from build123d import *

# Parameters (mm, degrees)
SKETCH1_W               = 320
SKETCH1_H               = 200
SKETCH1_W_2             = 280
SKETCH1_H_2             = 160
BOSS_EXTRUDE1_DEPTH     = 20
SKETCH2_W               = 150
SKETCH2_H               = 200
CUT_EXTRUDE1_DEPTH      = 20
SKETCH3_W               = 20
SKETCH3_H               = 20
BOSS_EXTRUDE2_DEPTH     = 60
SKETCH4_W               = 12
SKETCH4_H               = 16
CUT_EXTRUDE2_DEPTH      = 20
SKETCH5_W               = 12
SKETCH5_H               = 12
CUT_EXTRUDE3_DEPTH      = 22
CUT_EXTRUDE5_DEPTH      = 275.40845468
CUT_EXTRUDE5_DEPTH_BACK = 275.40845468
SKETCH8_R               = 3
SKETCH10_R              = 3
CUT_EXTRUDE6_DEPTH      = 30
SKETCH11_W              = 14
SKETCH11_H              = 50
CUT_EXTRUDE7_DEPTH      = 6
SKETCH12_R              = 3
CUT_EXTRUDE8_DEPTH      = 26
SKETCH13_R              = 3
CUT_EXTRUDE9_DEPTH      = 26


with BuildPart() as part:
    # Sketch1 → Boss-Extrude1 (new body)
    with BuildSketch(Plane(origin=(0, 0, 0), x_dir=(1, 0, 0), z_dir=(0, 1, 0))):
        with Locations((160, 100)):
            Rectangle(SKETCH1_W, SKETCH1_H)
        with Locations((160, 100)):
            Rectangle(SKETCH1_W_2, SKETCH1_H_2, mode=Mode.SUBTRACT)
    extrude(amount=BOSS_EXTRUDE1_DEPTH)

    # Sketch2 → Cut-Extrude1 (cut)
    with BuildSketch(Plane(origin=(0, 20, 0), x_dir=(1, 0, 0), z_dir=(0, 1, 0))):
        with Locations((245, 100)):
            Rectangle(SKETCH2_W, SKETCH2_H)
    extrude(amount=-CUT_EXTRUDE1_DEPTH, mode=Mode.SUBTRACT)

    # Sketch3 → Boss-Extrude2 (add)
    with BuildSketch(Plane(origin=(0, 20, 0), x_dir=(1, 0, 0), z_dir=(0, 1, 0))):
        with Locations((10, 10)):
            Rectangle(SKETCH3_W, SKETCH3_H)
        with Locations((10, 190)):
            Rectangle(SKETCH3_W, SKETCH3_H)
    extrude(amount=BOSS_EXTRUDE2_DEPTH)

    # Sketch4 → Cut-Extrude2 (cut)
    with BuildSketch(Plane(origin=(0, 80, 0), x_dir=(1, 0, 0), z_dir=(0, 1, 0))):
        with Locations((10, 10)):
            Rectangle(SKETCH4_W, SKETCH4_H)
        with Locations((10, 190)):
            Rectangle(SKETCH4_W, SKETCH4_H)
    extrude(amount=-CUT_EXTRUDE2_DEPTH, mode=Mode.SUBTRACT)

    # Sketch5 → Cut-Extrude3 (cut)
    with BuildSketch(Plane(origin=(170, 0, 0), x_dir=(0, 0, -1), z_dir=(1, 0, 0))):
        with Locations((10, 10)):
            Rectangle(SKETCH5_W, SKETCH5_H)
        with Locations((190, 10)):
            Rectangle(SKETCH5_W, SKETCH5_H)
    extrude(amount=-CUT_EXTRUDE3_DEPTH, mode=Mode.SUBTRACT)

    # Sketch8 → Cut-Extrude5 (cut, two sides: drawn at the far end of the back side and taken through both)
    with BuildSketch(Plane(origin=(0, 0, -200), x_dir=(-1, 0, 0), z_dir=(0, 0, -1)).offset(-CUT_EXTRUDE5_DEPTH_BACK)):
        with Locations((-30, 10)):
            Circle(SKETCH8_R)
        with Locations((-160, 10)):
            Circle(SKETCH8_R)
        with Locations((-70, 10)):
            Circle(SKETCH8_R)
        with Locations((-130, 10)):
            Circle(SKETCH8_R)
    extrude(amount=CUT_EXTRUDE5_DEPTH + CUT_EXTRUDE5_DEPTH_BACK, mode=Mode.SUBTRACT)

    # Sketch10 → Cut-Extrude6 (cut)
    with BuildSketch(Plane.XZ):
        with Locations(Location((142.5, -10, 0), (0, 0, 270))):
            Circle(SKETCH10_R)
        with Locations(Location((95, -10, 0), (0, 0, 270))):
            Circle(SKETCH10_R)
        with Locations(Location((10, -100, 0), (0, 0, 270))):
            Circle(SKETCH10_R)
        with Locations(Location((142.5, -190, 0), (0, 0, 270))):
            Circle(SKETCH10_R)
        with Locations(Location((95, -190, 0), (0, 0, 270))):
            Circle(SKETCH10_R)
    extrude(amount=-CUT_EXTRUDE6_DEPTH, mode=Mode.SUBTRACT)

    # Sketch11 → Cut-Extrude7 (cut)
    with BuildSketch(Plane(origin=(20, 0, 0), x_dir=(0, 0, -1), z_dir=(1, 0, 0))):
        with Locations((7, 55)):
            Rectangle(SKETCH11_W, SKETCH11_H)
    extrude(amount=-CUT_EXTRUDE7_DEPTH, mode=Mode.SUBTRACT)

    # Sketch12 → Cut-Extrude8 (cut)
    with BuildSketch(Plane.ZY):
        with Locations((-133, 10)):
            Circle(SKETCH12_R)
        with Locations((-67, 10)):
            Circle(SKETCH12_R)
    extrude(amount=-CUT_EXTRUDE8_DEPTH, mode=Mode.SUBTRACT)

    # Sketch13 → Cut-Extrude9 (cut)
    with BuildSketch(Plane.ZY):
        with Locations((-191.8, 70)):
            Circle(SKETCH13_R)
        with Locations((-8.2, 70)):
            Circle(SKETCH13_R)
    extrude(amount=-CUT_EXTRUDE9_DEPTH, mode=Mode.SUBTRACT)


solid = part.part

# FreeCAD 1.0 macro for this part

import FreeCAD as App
import Part
import Sketcher
from FreeCAD import Vector

doc = App.newDocument("Part")
body = doc.addObject("PartDesign::Body", "Body")

sketch1 = body.newObject("Sketcher::SketchObject", "Sketch")
sketch1.AttachmentSupport = (doc.getObject("XZ_Plane"), [""])
sketch1.MapMode = "FlatFace"
sketch1.addGeometry([
    Part.LineSegment(Vector(0, -200, 0), Vector(0, 0, 0)),
    Part.LineSegment(Vector(0, 0, 0), Vector(320, 0, 0)),
    Part.LineSegment(Vector(320, 0, 0), Vector(320, -200, 0)),
    Part.LineSegment(Vector(320, -200, 0), Vector(0, -200, 0)),
    Part.LineSegment(Vector(300, -20, 0), Vector(20, -20, 0)),
    Part.LineSegment(Vector(20, -20, 0), Vector(20, -180, 0)),
    Part.LineSegment(Vector(20, -180, 0), Vector(300, -180, 0)),
    Part.LineSegment(Vector(300, -180, 0), Vector(300, -20, 0)),
], False)
sketch1.addConstraint([
    Sketcher.Constraint("Coincident", 0, 2, 1, 1),
    Sketcher.Constraint("Coincident", 1, 2, 2, 1),
    Sketcher.Constraint("Coincident", 2, 2, 3, 1),
    Sketcher.Constraint("Coincident", 3, 2, 0, 1),
    Sketcher.Constraint("Coincident", 4, 2, 5, 1),
    Sketcher.Constraint("Coincident", 5, 2, 6, 1),
    Sketcher.Constraint("Coincident", 6, 2, 7, 1),
    Sketcher.Constraint("Coincident", 7, 2, 4, 1),
    Sketcher.Constraint("Vertical", 0),
    Sketcher.Constraint("Horizontal", 1),
    Sketcher.Constraint("Vertical", 2),
    Sketcher.Constraint("Horizontal", 3),
    Sketcher.Constraint("Horizontal", 4),
    Sketcher.Constraint("Vertical", 5),
    Sketcher.Constraint("Horizontal", 6),
    Sketcher.Constraint("Vertical", 7),
    Sketcher.Constraint("Coincident", 0, 2, -1, 1),
    Sketcher.Constraint("DistanceX", 1, 1, 1, 2, 320.0),
    Sketcher.Constraint("DistanceX", 4, 2, 4, 1, 280.0),
    Sketcher.Constraint("DistanceY", 0, 1, 0, 2, 200.0),
    Sketcher.Constraint("DistanceY", 5, 2, 5, 1, 160.0),
    Sketcher.Constraint("DistanceX", -1, 1, 4, 2, 20.0),
    Sketcher.Constraint("DistanceY", 4, 2, -1, 1, 20.0),
])
pad1 = body.newObject("PartDesign::Pad", "Pad")
pad1.Profile = sketch1
pad1.Length = 20
pad1.Reversed = True

sketch2 = body.newObject("Sketcher::SketchObject", "Sketch001")
sketch2.AttachmentSupport = (doc.getObject("XZ_Plane"), [""])
sketch2.MapMode = "FlatFace"
sketch2.AttachmentOffset = App.Placement(Vector(0, 0, -20), App.Rotation())
sketch2.addGeometry([
    Part.LineSegment(Vector(170, -200, 0), Vector(170, 0, 0)),
    Part.LineSegment(Vector(170, 0, 0), Vector(320, 0, 0)),
    Part.LineSegment(Vector(320, 0, 0), Vector(320, -200, 0)),
    Part.LineSegment(Vector(320, -200, 0), Vector(170, -200, 0)),
], False)
sketch2.addConstraint([
    Sketcher.Constraint("Coincident", 0, 2, 1, 1),
    Sketcher.Constraint("Coincident", 1, 2, 2, 1),
    Sketcher.Constraint("Coincident", 2, 2, 3, 1),
    Sketcher.Constraint("Coincident", 3, 2, 0, 1),
    Sketcher.Constraint("Vertical", 0),
    Sketcher.Constraint("Horizontal", 1),
    Sketcher.Constraint("Vertical", 2),
    Sketcher.Constraint("Horizontal", 3),
    Sketcher.Constraint("PointOnObject", 0, 2, -1),
    Sketcher.Constraint("DistanceX", 1, 1, 1, 2, 150.0),
    Sketcher.Constraint("DistanceY", 0, 1, 0, 2, 200.0),
    Sketcher.Constraint("DistanceX", -1, 1, 0, 2, 170.0),
])
pocket1 = body.newObject("PartDesign::Pocket", "Pocket")
pocket1.Profile = sketch2
pocket1.Length = 20
pocket1.Reversed = True

sketch3 = body.newObject("Sketcher::SketchObject", "Sketch002")
sketch3.AttachmentSupport = (doc.getObject("XZ_Plane"), [""])
sketch3.MapMode = "FlatFace"
sketch3.AttachmentOffset = App.Placement(Vector(0, 0, -20), App.Rotation())
sketch3.addGeometry([
    Part.LineSegment(Vector(0, -20, 0), Vector(0, 0, 0)),
    Part.LineSegment(Vector(0, 0, 0), Vector(20, 0, 0)),
    Part.LineSegment(Vector(20, 0, 0), Vector(20, -20, 0)),
    Part.LineSegment(Vector(20, -20, 0), Vector(0, -20, 0)),
    Part.LineSegment(Vector(0, -200, 0), Vector(0, -180, 0)),
    Part.LineSegment(Vector(0, -180, 0), Vector(20, -180, 0)),
    Part.LineSegment(Vector(20, -180, 0), Vector(20, -200, 0)),
    Part.LineSegment(Vector(20, -200, 0), Vector(0, -200, 0)),
], False)
sketch3.addConstraint([
    Sketcher.Constraint("Coincident", 0, 2, 1, 1),
    Sketcher.Constraint("Coincident", 1, 2, 2, 1),
    Sketcher.Constraint("Coincident", 2, 2, 3, 1),
    Sketcher.Constraint("Coincident", 3, 2, 0, 1),
    Sketcher.Constraint("Coincident", 4, 2, 5, 1),
    Sketcher.Constraint("Coincident", 5, 2, 6, 1),
    Sketcher.Constraint("Coincident", 6, 2, 7, 1),
    Sketcher.Constraint("Coincident", 7, 2, 4, 1),
    Sketcher.Constraint("Vertical", 0),
    Sketcher.Constraint("Horizontal", 1),
    Sketcher.Constraint("Vertical", 2),
    Sketcher.Constraint("Horizontal", 3),
    Sketcher.Constraint("Vertical", 4),
    Sketcher.Constraint("Horizontal", 5),
    Sketcher.Constraint("Vertical", 6),
    Sketcher.Constraint("Horizontal", 7),
    Sketcher.Constraint("Coincident", 0, 2, -1, 1),
    Sketcher.Constraint("PointOnObject", 4, 2, -2),
    Sketcher.Constraint("Vertical", 2, 2, 5, 2),
    Sketcher.Constraint("Equal", 7, 0),
    Sketcher.Constraint("Equal", 2, 4),
    Sketcher.Constraint("DistanceX", 1, 1, 1, 2, 20.0),
    Sketcher.Constraint("DistanceY", 4, 2, -1, 1, 180.0),
])
pad2 = body.newObject("PartDesign::Pad", "Pad001")
pad2.Profile = sketch3
pad2.Length = 60
pad2.Reversed = True

sketch4 = body.newObject("Sketcher::SketchObject", "Sketch003")
sketch4.AttachmentSupport = (doc.getObject("XZ_Plane"), [""])
sketch4.MapMode = "FlatFace"
sketch4.AttachmentOffset = App.Placement(Vector(0, 0, -80), App.Rotation())
sketch4.addGeometry([
    Part.LineSegment(Vector(4, -18, 0), Vector(4, -2, 0)),
    Part.LineSegment(Vector(4, -2, 0), Vector(16, -2, 0)),
    Part.LineSegment(Vector(16, -2, 0), Vector(16, -18, 0)),
    Part.LineSegment(Vector(16, -18, 0), Vector(4, -18, 0)),
    Part.LineSegment(Vector(4, -198, 0), Vector(4, -182, 0)),
    Part.LineSegment(Vector(4, -182, 0), Vector(16, -182, 0)),
    Part.LineSegment(Vector(16, -182, 0), Vector(16, -198, 0)),
    Part.LineSegment(Vector(16, -198, 0), Vector(4, -198, 0)),
], False)
sketch4.addConstraint([
    Sketcher.Constraint("Coincident", 0, 2, 1, 1),
    Sketcher.Constraint("Coincident", 1, 2, 2, 1),
    Sketcher.Constraint("Coincident", 2, 2, 3, 1),
    Sketcher.Constraint("Coincident", 3, 2, 0, 1),
    Sketcher.Constraint("Coincident", 4, 2, 5, 1),
    Sketcher.Constraint("Coincident", 5, 2, 6, 1),
    Sketcher.Constraint("Coincident", 6, 2, 7, 1),
    Sketcher.Constraint("Coincident", 7, 2, 4, 1),
    Sketcher.Constraint("Vertical", 0),
    Sketcher.Constraint("Horizontal", 1),
    Sketcher.Constraint("Vertical", 2),
    Sketcher.Constraint("Horizontal", 3),
    Sketcher.Constraint("Vertical", 4),
    Sketcher.Constraint("Horizontal", 5),
    Sketcher.Constraint("Vertical", 6),
    Sketcher.Constraint("Horizontal", 7),
    Sketcher.Constraint("Vertical", 3, 2, 4, 2),
    Sketcher.Constraint("Vertical", 2, 2, 5, 2),
    Sketcher.Constraint("Equal", 2, 4),
    Sketcher.Constraint("DistanceX", 1, 1, 1, 2, 12.0),
    Sketcher.Constraint("DistanceY", 0, 1, 0, 2, 16.0),
    Sketcher.Constraint("DistanceX", -1, 1, 0, 2, 4.0),
    Sketcher.Constraint("DistanceY", 0, 2, -1, 1, 2.0),
    Sketcher.Constraint("DistanceY", 4, 2, -1, 1, 182.0),
])
pocket2 = body.newObject("PartDesign::Pocket", "Pocket001")
pocket2.Profile = sketch4
pocket2.Length = 20
pocket2.Reversed = True

sketch5 = body.newObject("Sketcher::SketchObject", "Sketch004")
sketch5.AttachmentSupport = (doc.getObject("YZ_Plane"), [""])
sketch5.MapMode = "FlatFace"
sketch5.AttachmentOffset = App.Placement(Vector(0, 0, 170), App.Rotation())
sketch5.addGeometry([
    Part.LineSegment(Vector(16, -4, 0), Vector(4, -4, 0)),
    Part.LineSegment(Vector(4, -4, 0), Vector(4, -16, 0)),
    Part.LineSegment(Vector(4, -16, 0), Vector(16, -16, 0)),
    Part.LineSegment(Vector(16, -16, 0), Vector(16, -4, 0)),
    Part.LineSegment(Vector(16, -184, 0), Vector(4, -184, 0)),
    Part.LineSegment(Vector(4, -184, 0), Vector(4, -196, 0)),
    Part.LineSegment(Vector(4, -196, 0), Vector(16, -196, 0)),
    Part.LineSegment(Vector(16, -196, 0), Vector(16, -184, 0)),
], False)
sketch5.addConstraint([
    Sketcher.Constraint("Coincident", 0, 2, 1, 1),
    Sketcher.Constraint("Coincident", 1, 2, 2, 1),
    Sketcher.Constraint("Coincident", 2, 2, 3, 1),
    Sketcher.Constraint("Coincident", 3, 2, 0, 1),
    Sketcher.Constraint("Coincident", 4, 2, 5, 1),
    Sketcher.Constraint("Coincident", 5, 2, 6, 1),
    Sketcher.Constraint("Coincident", 6, 2, 7, 1),
    Sketcher.Constraint("Coincident", 7, 2, 4, 1),
    Sketcher.Constraint("Horizontal", 0),
    Sketcher.Constraint("Vertical", 1),
    Sketcher.Constraint("Horizontal", 2),
    Sketcher.Constraint("Vertical", 3),
    Sketcher.Constraint("Horizontal", 4),
    Sketcher.Constraint("Vertical", 5),
    Sketcher.Constraint("Horizontal", 6),
    Sketcher.Constraint("Vertical", 7),
    Sketcher.Constraint("Vertical", 1, 2, 4, 2),
    Sketcher.Constraint("Vertical", 3, 2, 6, 2),
    Sketcher.Constraint("Equal", 6, 1),
    Sketcher.Constraint("Equal", 3, 5),
    Sketcher.Constraint("DistanceX", 0, 2, 0, 1, 12.0),
    Sketcher.Constraint("DistanceX", -1, 1, 0, 2, 4.0),
    Sketcher.Constraint("DistanceY", 0, 2, -1, 1, 4.0),
    Sketcher.Constraint("DistanceY", 4, 2, -1, 1, 184.0),
])
pocket3 = body.newObject("PartDesign::Pocket", "Pocket002")
pocket3.Profile = sketch5
pocket3.Length = 22

sketch6 = body.newObject("Sketcher::SketchObject", "Sketch005")
sketch6.AttachmentSupport = (doc.getObject("XY_Plane"), [""])
sketch6.MapMode = "FlatFace"
sketch6.AttachmentOffset = App.Placement(Vector(0, 0, -200), App.Rotation())
sketch6.addGeometry([
    Part.Circle(Vector(30, 10, 0), Vector(0, 0, 1), 3),
    Part.Circle(Vector(160, 10, 0), Vector(0, 0, 1), 3),
    Part.Circle(Vector(70, 10, 0), Vector(0, 0, 1), 3),
    Part.Circle(Vector(130, 10, 0), Vector(0, 0, 1), 3),
], False)
sketch6.addConstraint([
    Sketcher.Constraint("Equal", 0, 1),
    Sketcher.Constraint("Equal", 1, 2),
    Sketcher.Constraint("Equal", 2, 3),
    Sketcher.Constraint("Horizontal", 0, 3, 1, 3),
    Sketcher.Constraint("Horizontal", 1, 3, 2, 3),
    Sketcher.Constraint("Horizontal", 2, 3, 3, 3),
    Sketcher.Constraint("Diameter", 0, 6.0),
    Sketcher.Constraint("DistanceX", -1, 1, 0, 3, 30.0),
    Sketcher.Constraint("DistanceY", -1, 1, 0, 3, 10.0),
    Sketcher.Constraint("DistanceX", -1, 1, 1, 3, 160.0),
    Sketcher.Constraint("DistanceX", -1, 1, 2, 3, 70.0),
    Sketcher.Constraint("DistanceX", -1, 1, 3, 3, 130.0),
])
pocket4 = body.newObject("PartDesign::Pocket", "Pocket003")
pocket4.Profile = sketch6
pocket4.Type = "ThroughAll"
pocket4.Midplane = True

sketch7 = body.newObject("Sketcher::SketchObject", "Sketch006")
sketch7.AttachmentSupport = (doc.getObject("XZ_Plane"), [""])
sketch7.MapMode = "FlatFace"
sketch7.addGeometry([
    Part.Circle(Vector(142.5, -10, 0), Vector(0, 0, 1), 3),
    Part.Circle(Vector(95, -10, 0), Vector(0, 0, 1), 3),
    Part.Circle(Vector(10, -100, 0), Vector(0, 0, 1), 3),
    Part.Circle(Vector(142.5, -190, 0), Vector(0, 0, 1), 3),
    Part.Circle(Vector(95, -190, 0), Vector(0, 0, 1), 3),
], False)
sketch7.addConstraint([
    Sketcher.Constraint("Equal", 0, 1),
    Sketcher.Constraint("Equal", 1, 2),
    Sketcher.Constraint("Equal", 2, 3),
    Sketcher.Constraint("Equal", 3, 4),
    Sketcher.Constraint("Horizontal", 0, 3, 1, 3),
    Sketcher.Constraint("Horizontal", 3, 3, 4, 3),
    Sketcher.Constraint("Vertical", 0, 3, 3, 3),
    Sketcher.Constraint("Vertical", 1, 3, 4, 3),
    Sketcher.Constraint("Diameter", 0, 6.0),
    Sketcher.Constraint("DistanceY", 0, 3, -1, 1, 10.0),
    Sketcher.Constraint("DistanceX", -1, 1, 1, 3, 95.0),
    Sketcher.Constraint("DistanceX", -1, 1, 2, 3, 10.0),
    Sketcher.Constraint("DistanceY", 2, 3, -1, 1, 100.0),
    Sketcher.Constraint("DistanceY", 3, 3, -1, 1, 190.0),
    Sketcher.Constraint("DistanceX", -1, 1, 0, 3, 142.5),
])
pocket5 = body.newObject("PartDesign::Pocket", "Pocket004")
pocket5.Profile = sketch7
pocket5.Length = 30

sketch8 = body.newObject("Sketcher::SketchObject", "Sketch007")
sketch8.AttachmentSupport = (doc.getObject("YZ_Plane"), [""])
sketch8.MapMode = "FlatFace"
sketch8.AttachmentOffset = App.Placement(Vector(0, 0, 20), App.Rotation())
sketch8.addGeometry([
    Part.LineSegment(Vector(80, 0, 0), Vector(30, 0, 0)),
    Part.LineSegment(Vector(30, 0, 0), Vector(30, -14, 0)),
    Part.LineSegment(Vector(30, -14, 0), Vector(80, -14, 0)),
    Part.LineSegment(Vector(80, -14, 0), Vector(80, 0, 0)),
], False)
sketch8.addConstraint([
    Sketcher.Constraint("Coincident", 0, 2, 1, 1),
    Sketcher.Constraint("Coincident", 1, 2, 2, 1),
    Sketcher.Constraint("Coincident", 2, 2, 3, 1),
    Sketcher.Constraint("Coincident", 3, 2, 0, 1),
    Sketcher.Constraint("Horizontal", 0),
    Sketcher.Constraint("Vertical", 1),
    Sketcher.Constraint("Horizontal", 2),
    Sketcher.Constraint("Vertical", 3),
    Sketcher.Constraint("PointOnObject", 0, 2, -1),
    Sketcher.Constraint("DistanceX", 0, 2, 0, 1, 50.0),
    Sketcher.Constraint("DistanceY", 1, 2, 1, 1, 14.0),
    Sketcher.Constraint("DistanceX", -1, 1, 0, 2, 30.0),
])
pocket6 = body.newObject("PartDesign::Pocket", "Pocket005")
pocket6.Profile = sketch8
pocket6.Length = 6

sketch9 = body.newObject("Sketcher::SketchObject", "Sketch008")
sketch9.AttachmentSupport = (doc.getObject("YZ_Plane"), [""])
sketch9.MapMode = "FlatFace"
sketch9.addGeometry([
    Part.Circle(Vector(10, -133, 0), Vector(0, 0, 1), 3),
    Part.Circle(Vector(10, -67, 0), Vector(0, 0, 1), 3),
], False)
sketch9.addConstraint([
    Sketcher.Constraint("Equal", 0, 1),
    Sketcher.Constraint("Vertical", 0, 3, 1, 3),
    Sketcher.Constraint("Diameter", 0, 6.0),
    Sketcher.Constraint("DistanceX", -1, 1, 0, 3, 10.0),
    Sketcher.Constraint("DistanceY", 0, 3, -1, 1, 133.0),
    Sketcher.Constraint("DistanceY", 1, 3, -1, 1, 67.0),
])
pocket7 = body.newObject("PartDesign::Pocket", "Pocket006")
pocket7.Profile = sketch9
pocket7.Length = 26
pocket7.Reversed = True

sketch10 = body.newObject("Sketcher::SketchObject", "Sketch009")
sketch10.AttachmentSupport = (doc.getObject("YZ_Plane"), [""])
sketch10.MapMode = "FlatFace"
sketch10.addGeometry([
    Part.Circle(Vector(70, -191.8, 0), Vector(0, 0, 1), 3),
    Part.Circle(Vector(70, -8.2, 0), Vector(0, 0, 1), 3),
], False)
sketch10.addConstraint([
    Sketcher.Constraint("Equal", 0, 1),
    Sketcher.Constraint("Vertical", 0, 3, 1, 3),
    Sketcher.Constraint("Diameter", 0, 6.0),
    Sketcher.Constraint("DistanceX", -1, 1, 0, 3, 70.0),
    Sketcher.Constraint("DistanceY", 0, 3, -1, 1, 191.8),
    Sketcher.Constraint("DistanceY", 1, 3, -1, 1, 8.2),
])
pocket8 = body.newObject("PartDesign::Pocket", "Pocket007")
pocket8.Profile = sketch10
pocket8.Length = 26
pocket8.Reversed = True

doc.recompute()
